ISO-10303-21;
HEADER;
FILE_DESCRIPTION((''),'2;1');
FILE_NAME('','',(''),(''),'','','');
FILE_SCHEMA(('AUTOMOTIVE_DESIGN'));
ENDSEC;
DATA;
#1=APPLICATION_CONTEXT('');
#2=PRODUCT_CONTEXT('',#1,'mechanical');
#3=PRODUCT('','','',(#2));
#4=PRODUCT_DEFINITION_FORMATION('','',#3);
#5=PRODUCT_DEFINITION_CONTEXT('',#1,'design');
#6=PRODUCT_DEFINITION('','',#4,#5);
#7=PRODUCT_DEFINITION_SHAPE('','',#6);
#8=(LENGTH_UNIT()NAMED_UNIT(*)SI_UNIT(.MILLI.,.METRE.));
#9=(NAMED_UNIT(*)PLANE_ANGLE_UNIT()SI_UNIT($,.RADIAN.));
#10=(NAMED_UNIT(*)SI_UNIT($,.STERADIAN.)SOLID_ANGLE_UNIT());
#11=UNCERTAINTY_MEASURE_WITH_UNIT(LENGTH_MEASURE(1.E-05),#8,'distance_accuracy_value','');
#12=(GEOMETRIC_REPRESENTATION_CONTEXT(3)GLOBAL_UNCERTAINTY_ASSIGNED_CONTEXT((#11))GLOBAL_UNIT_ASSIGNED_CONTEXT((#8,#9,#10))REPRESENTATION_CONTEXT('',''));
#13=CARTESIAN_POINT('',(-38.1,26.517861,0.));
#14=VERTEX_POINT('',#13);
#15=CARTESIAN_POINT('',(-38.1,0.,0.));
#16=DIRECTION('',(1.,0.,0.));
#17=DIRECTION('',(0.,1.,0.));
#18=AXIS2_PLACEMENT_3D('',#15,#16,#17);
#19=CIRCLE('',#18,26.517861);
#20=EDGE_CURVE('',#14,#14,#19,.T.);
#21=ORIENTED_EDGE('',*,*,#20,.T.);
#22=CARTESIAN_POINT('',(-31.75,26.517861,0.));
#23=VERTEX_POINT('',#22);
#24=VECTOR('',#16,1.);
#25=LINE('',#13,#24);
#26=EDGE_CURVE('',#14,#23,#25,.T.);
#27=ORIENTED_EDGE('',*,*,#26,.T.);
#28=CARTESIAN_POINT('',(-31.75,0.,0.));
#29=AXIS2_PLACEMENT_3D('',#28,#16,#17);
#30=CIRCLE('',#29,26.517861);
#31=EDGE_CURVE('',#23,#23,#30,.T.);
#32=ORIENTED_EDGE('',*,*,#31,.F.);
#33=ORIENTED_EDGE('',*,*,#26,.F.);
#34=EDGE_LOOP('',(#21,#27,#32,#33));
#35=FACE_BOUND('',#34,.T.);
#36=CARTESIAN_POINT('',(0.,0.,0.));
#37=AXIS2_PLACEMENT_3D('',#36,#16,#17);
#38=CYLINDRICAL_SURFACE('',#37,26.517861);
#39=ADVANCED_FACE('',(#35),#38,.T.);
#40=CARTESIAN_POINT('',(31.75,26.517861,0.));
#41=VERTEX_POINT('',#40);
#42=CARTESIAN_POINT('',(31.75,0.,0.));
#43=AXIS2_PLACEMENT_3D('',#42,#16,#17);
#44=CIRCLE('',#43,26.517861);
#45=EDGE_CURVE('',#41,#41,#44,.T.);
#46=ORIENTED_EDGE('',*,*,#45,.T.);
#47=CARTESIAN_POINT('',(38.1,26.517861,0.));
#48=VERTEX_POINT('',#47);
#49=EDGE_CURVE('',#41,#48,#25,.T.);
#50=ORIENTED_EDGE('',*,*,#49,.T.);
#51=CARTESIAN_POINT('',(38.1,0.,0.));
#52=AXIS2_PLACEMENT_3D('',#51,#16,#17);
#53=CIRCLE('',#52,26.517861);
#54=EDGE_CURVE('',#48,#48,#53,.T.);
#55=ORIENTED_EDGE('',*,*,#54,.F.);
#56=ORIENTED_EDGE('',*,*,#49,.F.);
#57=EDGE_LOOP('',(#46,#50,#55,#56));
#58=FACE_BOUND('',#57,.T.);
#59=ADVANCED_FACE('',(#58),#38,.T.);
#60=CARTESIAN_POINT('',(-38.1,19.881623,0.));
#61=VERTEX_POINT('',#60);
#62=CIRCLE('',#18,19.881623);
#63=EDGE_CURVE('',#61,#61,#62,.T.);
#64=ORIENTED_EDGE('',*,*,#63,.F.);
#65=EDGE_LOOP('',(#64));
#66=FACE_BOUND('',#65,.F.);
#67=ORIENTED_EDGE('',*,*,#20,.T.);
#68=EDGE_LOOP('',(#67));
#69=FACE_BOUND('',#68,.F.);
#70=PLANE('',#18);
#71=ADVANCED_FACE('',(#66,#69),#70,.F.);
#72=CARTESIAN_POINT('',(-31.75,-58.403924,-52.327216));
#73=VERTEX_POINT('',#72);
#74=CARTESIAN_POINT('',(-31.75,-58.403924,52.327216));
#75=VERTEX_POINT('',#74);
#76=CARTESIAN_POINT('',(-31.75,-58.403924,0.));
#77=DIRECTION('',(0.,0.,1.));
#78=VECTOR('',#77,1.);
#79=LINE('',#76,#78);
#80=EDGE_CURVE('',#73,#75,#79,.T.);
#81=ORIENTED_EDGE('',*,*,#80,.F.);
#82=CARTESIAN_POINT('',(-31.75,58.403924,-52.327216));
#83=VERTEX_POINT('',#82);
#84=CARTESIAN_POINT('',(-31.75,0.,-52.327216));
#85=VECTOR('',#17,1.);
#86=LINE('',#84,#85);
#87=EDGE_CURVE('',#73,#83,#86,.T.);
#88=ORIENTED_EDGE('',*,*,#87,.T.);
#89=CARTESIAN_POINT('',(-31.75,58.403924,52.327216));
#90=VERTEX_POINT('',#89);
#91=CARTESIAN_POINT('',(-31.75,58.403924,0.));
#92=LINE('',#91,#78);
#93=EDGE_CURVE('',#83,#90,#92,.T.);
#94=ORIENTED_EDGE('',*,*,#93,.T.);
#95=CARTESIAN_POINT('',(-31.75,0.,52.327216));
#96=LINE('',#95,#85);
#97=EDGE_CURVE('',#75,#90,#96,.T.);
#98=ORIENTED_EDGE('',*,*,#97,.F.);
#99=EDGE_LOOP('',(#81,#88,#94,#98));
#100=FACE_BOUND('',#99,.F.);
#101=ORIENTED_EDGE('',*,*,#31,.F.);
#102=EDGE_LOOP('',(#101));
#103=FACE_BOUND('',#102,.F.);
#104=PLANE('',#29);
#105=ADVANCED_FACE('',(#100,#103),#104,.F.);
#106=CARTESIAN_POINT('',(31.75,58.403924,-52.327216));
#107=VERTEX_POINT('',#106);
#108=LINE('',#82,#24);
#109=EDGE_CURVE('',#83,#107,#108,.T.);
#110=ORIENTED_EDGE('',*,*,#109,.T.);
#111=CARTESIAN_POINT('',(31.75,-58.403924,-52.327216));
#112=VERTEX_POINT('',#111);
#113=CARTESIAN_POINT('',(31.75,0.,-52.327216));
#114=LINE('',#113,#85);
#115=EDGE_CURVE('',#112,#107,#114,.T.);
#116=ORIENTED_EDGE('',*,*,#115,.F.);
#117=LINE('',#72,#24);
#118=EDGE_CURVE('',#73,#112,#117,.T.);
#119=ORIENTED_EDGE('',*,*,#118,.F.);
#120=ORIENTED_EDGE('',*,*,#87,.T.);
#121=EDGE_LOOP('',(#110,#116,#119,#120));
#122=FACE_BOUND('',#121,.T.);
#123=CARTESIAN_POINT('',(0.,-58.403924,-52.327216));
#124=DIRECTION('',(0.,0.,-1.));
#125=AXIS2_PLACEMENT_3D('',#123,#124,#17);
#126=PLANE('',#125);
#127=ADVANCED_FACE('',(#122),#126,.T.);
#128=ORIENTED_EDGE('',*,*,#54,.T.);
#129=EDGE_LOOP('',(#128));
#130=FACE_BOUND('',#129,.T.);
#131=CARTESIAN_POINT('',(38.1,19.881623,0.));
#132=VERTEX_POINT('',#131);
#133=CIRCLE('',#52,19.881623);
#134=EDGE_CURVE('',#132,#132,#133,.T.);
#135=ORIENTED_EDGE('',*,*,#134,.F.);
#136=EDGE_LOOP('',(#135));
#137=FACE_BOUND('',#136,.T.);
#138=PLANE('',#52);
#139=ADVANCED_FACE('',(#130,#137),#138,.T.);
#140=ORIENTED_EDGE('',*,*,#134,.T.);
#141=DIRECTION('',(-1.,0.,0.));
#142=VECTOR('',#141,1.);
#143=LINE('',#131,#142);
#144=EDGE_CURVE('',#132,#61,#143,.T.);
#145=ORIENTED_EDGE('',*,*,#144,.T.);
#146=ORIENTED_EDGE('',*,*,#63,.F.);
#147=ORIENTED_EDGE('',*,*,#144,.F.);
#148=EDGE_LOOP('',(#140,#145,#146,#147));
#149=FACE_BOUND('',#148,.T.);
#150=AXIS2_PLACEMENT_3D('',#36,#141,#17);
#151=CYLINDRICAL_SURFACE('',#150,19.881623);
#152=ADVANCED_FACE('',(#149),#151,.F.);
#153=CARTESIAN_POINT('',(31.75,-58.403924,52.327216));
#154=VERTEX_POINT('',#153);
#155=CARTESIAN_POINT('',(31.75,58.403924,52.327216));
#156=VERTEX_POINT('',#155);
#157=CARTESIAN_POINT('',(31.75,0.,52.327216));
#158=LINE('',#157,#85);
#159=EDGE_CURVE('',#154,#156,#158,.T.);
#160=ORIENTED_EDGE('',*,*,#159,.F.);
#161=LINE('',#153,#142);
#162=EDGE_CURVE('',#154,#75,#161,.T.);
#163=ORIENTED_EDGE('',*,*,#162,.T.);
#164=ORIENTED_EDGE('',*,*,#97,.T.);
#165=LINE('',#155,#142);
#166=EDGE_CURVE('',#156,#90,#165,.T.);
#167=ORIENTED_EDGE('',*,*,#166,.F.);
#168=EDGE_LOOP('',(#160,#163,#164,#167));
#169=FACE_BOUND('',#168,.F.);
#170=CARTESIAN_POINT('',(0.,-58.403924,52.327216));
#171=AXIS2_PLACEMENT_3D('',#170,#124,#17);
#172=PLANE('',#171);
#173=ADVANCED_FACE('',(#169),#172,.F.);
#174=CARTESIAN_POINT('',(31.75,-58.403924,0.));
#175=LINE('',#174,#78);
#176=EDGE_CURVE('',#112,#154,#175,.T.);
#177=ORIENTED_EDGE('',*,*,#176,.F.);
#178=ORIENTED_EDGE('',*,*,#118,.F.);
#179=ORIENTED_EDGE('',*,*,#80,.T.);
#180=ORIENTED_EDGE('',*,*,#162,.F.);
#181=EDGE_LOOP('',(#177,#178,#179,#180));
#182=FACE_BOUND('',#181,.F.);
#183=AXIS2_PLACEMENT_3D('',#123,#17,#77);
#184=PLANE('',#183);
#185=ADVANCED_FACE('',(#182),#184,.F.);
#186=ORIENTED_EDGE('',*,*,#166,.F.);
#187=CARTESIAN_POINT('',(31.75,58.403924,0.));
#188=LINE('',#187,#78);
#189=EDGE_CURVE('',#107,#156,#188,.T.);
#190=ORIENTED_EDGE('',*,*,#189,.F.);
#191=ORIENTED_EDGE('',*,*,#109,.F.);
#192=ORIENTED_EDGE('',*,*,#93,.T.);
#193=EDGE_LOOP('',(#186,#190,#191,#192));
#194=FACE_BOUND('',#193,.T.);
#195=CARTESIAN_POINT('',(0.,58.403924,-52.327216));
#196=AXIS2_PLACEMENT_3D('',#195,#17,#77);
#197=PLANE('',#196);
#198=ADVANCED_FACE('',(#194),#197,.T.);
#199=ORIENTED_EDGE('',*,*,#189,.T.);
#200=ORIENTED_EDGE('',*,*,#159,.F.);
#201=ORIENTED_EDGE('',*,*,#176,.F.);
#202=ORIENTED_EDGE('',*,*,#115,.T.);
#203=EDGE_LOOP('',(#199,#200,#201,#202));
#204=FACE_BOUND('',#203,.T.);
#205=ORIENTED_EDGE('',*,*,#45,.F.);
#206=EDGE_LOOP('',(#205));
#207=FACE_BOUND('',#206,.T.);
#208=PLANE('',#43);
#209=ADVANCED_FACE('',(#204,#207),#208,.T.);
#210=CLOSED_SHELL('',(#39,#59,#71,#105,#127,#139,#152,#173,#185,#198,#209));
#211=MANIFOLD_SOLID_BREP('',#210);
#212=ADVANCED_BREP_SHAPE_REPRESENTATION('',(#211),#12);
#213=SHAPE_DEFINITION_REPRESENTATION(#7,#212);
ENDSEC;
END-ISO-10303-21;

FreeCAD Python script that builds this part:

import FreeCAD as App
import Part
import Sketcher

V = App.Vector
Q = App.Units.Quantity


def add_polygon(sketch, points):
    """Adds a closed chain of lines whose ends are joined by coincident constraints."""
    first, n = sketch.GeometryCount, len(points)
    for a, b in zip(points, points[1:] + points[:1]):
        sketch.addGeometry(Part.LineSegment(App.Vector(*a, 0), App.Vector(*b, 0)), False)
    for i in range(n):
        sketch.addConstraint(Sketcher.Constraint("Coincident", first + i, 2, first + (i + 1) % n, 1))

doc = App.newDocument("Part")
body = doc.addObject("PartDesign::Body", "Body")

# Sketch on YZ plane
sketch1 = body.newObject("Sketcher::SketchObject", "Sketch")
sketch1.AttachmentSupport = (doc.getObject("YZ_Plane"), [""])
sketch1.MapMode = "FlatFace"
add_polygon(sketch1, [(-58, 52), (-58, -52), (58, -52), (58, 52)])  # lines 0-3
sketch1.addGeometry(Part.Circle(V(0, 0, 0), V(0, 0, 1), 27), False)  # 4
sketch1.addConstraint([
    Sketcher.Constraint("Vertical", 0),
    Sketcher.Constraint("Horizontal", 1),
    Sketcher.Constraint("Vertical", 2),
    Sketcher.Constraint("Horizontal", 3),
    Sketcher.Constraint("Coincident", 4, 3, -1, 1),
    Sketcher.Constraint("Symmetric", 0, 2, 2, 2, -1, 1),
    Sketcher.Constraint("Diameter", 4, 53.035722),
    Sketcher.Constraint("DistanceX", 1, 1, 1, 2, 116.807848),
    Sketcher.Constraint("DistanceY", 0, 2, 0, 1, 104.654432),
])
pad1 = body.newObject("PartDesign::Pad", "Pad")
pad1.Profile = sketch1
pad1.Length = Q("2.5 in")
pad1.Midplane = True

# Sketch on YZ plane
sketch2 = body.newObject("Sketcher::SketchObject", "Sketch001")
sketch2.AttachmentSupport = (doc.getObject("YZ_Plane"), [""])
sketch2.MapMode = "FlatFace"
sketch2.addGeometry([
    Part.Circle(V(0, 0, 0), V(0, 0, 1), 27),
    Part.Circle(V(0, 0, 0), V(0, 0, 1), 20),
], False)
sketch2.addConstraint([
    Sketcher.Constraint("Coincident", 0, 3, -1, 1),
    Sketcher.Constraint("Coincident", 1, 3, -1, 1),
    Sketcher.Constraint("Diameter", 0, 53.035722),
    Sketcher.Constraint("Diameter", 1, 39.763246),
])
pad2 = body.newObject("PartDesign::Pad", "Pad001")
pad2.Profile = sketch2
pad2.Length = Q("3 in")
pad2.Midplane = True

doc.recompute()
